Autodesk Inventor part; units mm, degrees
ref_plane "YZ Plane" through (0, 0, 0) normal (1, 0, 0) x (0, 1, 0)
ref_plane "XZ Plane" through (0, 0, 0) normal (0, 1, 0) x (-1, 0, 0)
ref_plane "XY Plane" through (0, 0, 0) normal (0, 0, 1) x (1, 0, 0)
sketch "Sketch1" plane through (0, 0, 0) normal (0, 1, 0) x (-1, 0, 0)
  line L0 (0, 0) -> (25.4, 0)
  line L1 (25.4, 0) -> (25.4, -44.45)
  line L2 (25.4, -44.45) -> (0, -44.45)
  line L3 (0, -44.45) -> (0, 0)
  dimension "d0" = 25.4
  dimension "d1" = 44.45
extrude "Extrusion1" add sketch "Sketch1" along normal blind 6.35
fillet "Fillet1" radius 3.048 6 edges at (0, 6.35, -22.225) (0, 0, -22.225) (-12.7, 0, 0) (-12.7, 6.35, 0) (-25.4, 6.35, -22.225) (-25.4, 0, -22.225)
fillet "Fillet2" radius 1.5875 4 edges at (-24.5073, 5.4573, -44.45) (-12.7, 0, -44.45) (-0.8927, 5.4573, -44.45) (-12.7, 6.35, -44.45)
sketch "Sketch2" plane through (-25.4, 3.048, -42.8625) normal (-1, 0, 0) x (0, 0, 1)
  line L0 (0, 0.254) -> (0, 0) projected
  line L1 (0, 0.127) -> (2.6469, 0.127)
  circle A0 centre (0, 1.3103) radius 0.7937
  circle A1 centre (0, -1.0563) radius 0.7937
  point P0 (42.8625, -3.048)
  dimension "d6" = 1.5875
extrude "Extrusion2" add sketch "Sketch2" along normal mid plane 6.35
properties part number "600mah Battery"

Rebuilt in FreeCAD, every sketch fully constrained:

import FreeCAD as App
import Part
import Sketcher
from FreeCAD import Vector
Q = App.Units.Quantity


def edges_at(feature, points):
    """Names of the edges that pass closest to the given points."""
    edges = feature.Shape.Edges
    near = lambda p: min(range(len(edges)), key=lambda i: edges[i].distToShape(Part.Vertex(*p))[0])
    return sorted({f"Edge{near(p) + 1}" for p in points})


def add_polygon(sketch, points):
    """Adds a closed chain of lines whose ends are joined by coincident constraints."""
    first, n = sketch.GeometryCount, len(points)
    for a, b in zip(points, points[1:] + points[:1]):
        sketch.addGeometry(Part.LineSegment(App.Vector(*a, 0), App.Vector(*b, 0)), False)
    for i in range(n):
        sketch.addConstraint(Sketcher.Constraint("Coincident", first + i, 2, first + (i + 1) % n, 1))

doc = App.newDocument("Part")
body = doc.addObject("PartDesign::Body", "Body")

# Sketch on XZ plane
sketch1 = doc.addObject("Sketcher::SketchObject", "Sketch")
body.addObject(sketch1)
sketch1.AttachmentSupport = (doc.XZ_Plane, [""])
sketch1.MapMode = "FlatFace"
add_polygon(sketch1, [(-25, 0), (0, 0), (0, -44), (-25, -44)])  # lines 0-3
sketch1.addConstraint([
    Sketcher.Constraint("Horizontal", 0),
    Sketcher.Constraint("Vertical", 1),
    Sketcher.Constraint("Horizontal", 2),
    Sketcher.Constraint("Vertical", 3),
    Sketcher.Constraint("Coincident", 0, 2, -1, 1),
    Sketcher.Constraint("DistanceX", 0, 1, 0, 2, Q("1 in")),
    Sketcher.Constraint("DistanceY", 1, 2, 1, 1, Q("1.75 in")),
])
pad1 = doc.addObject("PartDesign::Pad", "Pad")
body.addObject(pad1)
pad1.Profile = sketch1
pad1.Length = Q("0.25 in")
pad1.Reversed = True
doc.recompute()

fillet = doc.addObject("PartDesign::Fillet", "Fillet")
body.addObject(fillet)
fillet.Base = (pad1, edges_at(pad1, [
    (0, 6.35, -22.225),
    (0, 0, -22.225),
    (-12.7, 0, 0),
    (-12.7, 6.35, 0),
    (-25.4, 6.35, -22.225),
    (-25.4, 0, -22.225),
]))
fillet.Radius = Q("0.12 in")
doc.recompute()

fillet2 = doc.addObject("PartDesign::Fillet", "Fillet001")
body.addObject(fillet2)
fillet2.Base = (fillet, edges_at(fillet, [
    (-24.507, 5.457, -44.45),
    (-12.7, 0, -44.45),
    (-0.893, 5.457, -44.45),
    (-12.7, 6.35, -44.45),
]))
fillet2.Radius = Q("0.0625 in")

# Sketch on YZ plane
sketch2 = doc.addObject("Sketcher::SketchObject", "Sketch001")
body.addObject(sketch2)
sketch2.AttachmentSupport = (doc.YZ_Plane, [""])
sketch2.MapMode = "FlatFace"
sketch2.AttachmentOffset = App.Placement(Vector(0, 0, -1 * 25.4), App.Rotation())
sketch2.addGeometry([
    Part.Circle(Vector(4.4, -42.9, 0), Vector(0, 0, 1), 0.8),
    Part.Circle(Vector(2, -42.9, 0), Vector(0, 0, 1), 0.8),
], False)
sketch2.addConstraint([
    Sketcher.Constraint("Equal", 0, 1),
    Sketcher.Constraint("Horizontal", 0, 3, 1, 3),
    Sketcher.Constraint("Diameter", 0, Q("0.0625 in")),
    Sketcher.Constraint("DistanceY", 0, 3, -1, 1, Q("1.6875 in")),
    Sketcher.Constraint("DistanceX", -1, 1, 0, 3, 4.3583),
    Sketcher.Constraint("DistanceX", -1, 1, 1, 3, 1.9917),
])
pad2 = doc.addObject("PartDesign::Pad", "Pad001")
body.addObject(pad2)
pad2.Profile = sketch2
pad2.Length = Q("0.25 in")
pad2.Midplane = True

doc.recompute()
